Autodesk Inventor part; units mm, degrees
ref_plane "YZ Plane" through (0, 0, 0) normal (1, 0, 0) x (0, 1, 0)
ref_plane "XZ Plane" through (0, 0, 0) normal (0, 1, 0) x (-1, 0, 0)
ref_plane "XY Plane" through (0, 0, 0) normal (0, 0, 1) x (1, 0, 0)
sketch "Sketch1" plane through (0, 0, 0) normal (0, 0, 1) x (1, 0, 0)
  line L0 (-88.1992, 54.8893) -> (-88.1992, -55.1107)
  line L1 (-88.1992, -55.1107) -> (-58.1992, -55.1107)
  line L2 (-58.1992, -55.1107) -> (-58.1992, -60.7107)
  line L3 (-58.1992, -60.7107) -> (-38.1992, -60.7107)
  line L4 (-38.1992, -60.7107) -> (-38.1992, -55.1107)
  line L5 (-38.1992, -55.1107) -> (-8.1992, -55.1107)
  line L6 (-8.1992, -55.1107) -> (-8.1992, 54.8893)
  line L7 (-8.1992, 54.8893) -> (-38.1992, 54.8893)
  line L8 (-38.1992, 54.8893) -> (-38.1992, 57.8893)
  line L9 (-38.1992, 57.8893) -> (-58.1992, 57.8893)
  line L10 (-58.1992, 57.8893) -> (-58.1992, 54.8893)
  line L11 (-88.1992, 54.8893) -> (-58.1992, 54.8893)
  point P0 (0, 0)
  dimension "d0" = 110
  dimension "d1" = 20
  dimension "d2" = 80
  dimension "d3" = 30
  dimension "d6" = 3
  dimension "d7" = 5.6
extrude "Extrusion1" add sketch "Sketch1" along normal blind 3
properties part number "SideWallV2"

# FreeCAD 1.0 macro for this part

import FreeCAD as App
import Part
import Sketcher


def add_polygon(sketch, points):
    """Adds a closed chain of lines whose ends are joined by coincident constraints."""
    first, n = sketch.GeometryCount, len(points)
    for a, b in zip(points, points[1:] + points[:1]):
        sketch.addGeometry(Part.LineSegment(App.Vector(*a, 0), App.Vector(*b, 0)), False)
    for i in range(n):
        sketch.addConstraint(Sketcher.Constraint("Coincident", first + i, 2, first + (i + 1) % n, 1))

doc = App.newDocument("Part")
body = doc.addObject("PartDesign::Body", "Body")

sketch1 = body.newObject("Sketcher::SketchObject", "Sketch")
sketch1.AttachmentSupport = (doc.getObject("XY_Plane"), [""])
sketch1.MapMode = "FlatFace"
add_polygon(sketch1, [(-58.2, 54.9), (-88.2, 54.9), (-88.2, -55.1), (-58.2, -55.1), (-58.2, -60.7), (-38.2, -60.7), (-38.2, -55.1), (-8.2, -55.1), (-8.2, 54.9), (-38.2, 54.9), (-38.2, 57.9), (-58.2, 57.9)])
sketch1.addConstraint([
    Sketcher.Constraint("Horizontal", 0),
    Sketcher.Constraint("Vertical", 1),
    Sketcher.Constraint("Horizontal", 2),
    Sketcher.Constraint("Vertical", 3),
    Sketcher.Constraint("Horizontal", 4),
    Sketcher.Constraint("Vertical", 5),
    Sketcher.Constraint("Horizontal", 6),
    Sketcher.Constraint("Vertical", 7),
    Sketcher.Constraint("Horizontal", 8),
    Sketcher.Constraint("Vertical", 9),
    Sketcher.Constraint("Horizontal", 10),
    Sketcher.Constraint("Vertical", 11),
    Sketcher.Constraint("Horizontal", 2, 2, 5, 2),
    Sketcher.Constraint("Horizontal", 0, 2, 7, 2),
    Sketcher.Constraint("Vertical", 5, 2, 8, 2),
    Sketcher.Constraint("Vertical", 3, 2, 10, 2),
    Sketcher.Constraint("Equal", 2, 6),
    Sketcher.Constraint("DistanceX", 0, 2, 0, 1, 30.0),
    Sketcher.Constraint("DistanceX", 4, 1, 4, 2, 20.0),
    Sketcher.Constraint("DistanceY", 1, 2, 1, 1, 110.0),
    Sketcher.Constraint("DistanceY", 9, 1, 9, 2, 3.0),
    Sketcher.Constraint("DistanceY", 3, 2, 3, 1, 5.6),
    Sketcher.Constraint("DistanceX", 0, 2, -1, 1, 88.1992),
    Sketcher.Constraint("DistanceY", -1, 1, 0, 2, 54.8893),
])
pad1 = body.newObject("PartDesign::Pad", "Pad")
pad1.Profile = sketch1
pad1.Length = 3

doc.recompute()
